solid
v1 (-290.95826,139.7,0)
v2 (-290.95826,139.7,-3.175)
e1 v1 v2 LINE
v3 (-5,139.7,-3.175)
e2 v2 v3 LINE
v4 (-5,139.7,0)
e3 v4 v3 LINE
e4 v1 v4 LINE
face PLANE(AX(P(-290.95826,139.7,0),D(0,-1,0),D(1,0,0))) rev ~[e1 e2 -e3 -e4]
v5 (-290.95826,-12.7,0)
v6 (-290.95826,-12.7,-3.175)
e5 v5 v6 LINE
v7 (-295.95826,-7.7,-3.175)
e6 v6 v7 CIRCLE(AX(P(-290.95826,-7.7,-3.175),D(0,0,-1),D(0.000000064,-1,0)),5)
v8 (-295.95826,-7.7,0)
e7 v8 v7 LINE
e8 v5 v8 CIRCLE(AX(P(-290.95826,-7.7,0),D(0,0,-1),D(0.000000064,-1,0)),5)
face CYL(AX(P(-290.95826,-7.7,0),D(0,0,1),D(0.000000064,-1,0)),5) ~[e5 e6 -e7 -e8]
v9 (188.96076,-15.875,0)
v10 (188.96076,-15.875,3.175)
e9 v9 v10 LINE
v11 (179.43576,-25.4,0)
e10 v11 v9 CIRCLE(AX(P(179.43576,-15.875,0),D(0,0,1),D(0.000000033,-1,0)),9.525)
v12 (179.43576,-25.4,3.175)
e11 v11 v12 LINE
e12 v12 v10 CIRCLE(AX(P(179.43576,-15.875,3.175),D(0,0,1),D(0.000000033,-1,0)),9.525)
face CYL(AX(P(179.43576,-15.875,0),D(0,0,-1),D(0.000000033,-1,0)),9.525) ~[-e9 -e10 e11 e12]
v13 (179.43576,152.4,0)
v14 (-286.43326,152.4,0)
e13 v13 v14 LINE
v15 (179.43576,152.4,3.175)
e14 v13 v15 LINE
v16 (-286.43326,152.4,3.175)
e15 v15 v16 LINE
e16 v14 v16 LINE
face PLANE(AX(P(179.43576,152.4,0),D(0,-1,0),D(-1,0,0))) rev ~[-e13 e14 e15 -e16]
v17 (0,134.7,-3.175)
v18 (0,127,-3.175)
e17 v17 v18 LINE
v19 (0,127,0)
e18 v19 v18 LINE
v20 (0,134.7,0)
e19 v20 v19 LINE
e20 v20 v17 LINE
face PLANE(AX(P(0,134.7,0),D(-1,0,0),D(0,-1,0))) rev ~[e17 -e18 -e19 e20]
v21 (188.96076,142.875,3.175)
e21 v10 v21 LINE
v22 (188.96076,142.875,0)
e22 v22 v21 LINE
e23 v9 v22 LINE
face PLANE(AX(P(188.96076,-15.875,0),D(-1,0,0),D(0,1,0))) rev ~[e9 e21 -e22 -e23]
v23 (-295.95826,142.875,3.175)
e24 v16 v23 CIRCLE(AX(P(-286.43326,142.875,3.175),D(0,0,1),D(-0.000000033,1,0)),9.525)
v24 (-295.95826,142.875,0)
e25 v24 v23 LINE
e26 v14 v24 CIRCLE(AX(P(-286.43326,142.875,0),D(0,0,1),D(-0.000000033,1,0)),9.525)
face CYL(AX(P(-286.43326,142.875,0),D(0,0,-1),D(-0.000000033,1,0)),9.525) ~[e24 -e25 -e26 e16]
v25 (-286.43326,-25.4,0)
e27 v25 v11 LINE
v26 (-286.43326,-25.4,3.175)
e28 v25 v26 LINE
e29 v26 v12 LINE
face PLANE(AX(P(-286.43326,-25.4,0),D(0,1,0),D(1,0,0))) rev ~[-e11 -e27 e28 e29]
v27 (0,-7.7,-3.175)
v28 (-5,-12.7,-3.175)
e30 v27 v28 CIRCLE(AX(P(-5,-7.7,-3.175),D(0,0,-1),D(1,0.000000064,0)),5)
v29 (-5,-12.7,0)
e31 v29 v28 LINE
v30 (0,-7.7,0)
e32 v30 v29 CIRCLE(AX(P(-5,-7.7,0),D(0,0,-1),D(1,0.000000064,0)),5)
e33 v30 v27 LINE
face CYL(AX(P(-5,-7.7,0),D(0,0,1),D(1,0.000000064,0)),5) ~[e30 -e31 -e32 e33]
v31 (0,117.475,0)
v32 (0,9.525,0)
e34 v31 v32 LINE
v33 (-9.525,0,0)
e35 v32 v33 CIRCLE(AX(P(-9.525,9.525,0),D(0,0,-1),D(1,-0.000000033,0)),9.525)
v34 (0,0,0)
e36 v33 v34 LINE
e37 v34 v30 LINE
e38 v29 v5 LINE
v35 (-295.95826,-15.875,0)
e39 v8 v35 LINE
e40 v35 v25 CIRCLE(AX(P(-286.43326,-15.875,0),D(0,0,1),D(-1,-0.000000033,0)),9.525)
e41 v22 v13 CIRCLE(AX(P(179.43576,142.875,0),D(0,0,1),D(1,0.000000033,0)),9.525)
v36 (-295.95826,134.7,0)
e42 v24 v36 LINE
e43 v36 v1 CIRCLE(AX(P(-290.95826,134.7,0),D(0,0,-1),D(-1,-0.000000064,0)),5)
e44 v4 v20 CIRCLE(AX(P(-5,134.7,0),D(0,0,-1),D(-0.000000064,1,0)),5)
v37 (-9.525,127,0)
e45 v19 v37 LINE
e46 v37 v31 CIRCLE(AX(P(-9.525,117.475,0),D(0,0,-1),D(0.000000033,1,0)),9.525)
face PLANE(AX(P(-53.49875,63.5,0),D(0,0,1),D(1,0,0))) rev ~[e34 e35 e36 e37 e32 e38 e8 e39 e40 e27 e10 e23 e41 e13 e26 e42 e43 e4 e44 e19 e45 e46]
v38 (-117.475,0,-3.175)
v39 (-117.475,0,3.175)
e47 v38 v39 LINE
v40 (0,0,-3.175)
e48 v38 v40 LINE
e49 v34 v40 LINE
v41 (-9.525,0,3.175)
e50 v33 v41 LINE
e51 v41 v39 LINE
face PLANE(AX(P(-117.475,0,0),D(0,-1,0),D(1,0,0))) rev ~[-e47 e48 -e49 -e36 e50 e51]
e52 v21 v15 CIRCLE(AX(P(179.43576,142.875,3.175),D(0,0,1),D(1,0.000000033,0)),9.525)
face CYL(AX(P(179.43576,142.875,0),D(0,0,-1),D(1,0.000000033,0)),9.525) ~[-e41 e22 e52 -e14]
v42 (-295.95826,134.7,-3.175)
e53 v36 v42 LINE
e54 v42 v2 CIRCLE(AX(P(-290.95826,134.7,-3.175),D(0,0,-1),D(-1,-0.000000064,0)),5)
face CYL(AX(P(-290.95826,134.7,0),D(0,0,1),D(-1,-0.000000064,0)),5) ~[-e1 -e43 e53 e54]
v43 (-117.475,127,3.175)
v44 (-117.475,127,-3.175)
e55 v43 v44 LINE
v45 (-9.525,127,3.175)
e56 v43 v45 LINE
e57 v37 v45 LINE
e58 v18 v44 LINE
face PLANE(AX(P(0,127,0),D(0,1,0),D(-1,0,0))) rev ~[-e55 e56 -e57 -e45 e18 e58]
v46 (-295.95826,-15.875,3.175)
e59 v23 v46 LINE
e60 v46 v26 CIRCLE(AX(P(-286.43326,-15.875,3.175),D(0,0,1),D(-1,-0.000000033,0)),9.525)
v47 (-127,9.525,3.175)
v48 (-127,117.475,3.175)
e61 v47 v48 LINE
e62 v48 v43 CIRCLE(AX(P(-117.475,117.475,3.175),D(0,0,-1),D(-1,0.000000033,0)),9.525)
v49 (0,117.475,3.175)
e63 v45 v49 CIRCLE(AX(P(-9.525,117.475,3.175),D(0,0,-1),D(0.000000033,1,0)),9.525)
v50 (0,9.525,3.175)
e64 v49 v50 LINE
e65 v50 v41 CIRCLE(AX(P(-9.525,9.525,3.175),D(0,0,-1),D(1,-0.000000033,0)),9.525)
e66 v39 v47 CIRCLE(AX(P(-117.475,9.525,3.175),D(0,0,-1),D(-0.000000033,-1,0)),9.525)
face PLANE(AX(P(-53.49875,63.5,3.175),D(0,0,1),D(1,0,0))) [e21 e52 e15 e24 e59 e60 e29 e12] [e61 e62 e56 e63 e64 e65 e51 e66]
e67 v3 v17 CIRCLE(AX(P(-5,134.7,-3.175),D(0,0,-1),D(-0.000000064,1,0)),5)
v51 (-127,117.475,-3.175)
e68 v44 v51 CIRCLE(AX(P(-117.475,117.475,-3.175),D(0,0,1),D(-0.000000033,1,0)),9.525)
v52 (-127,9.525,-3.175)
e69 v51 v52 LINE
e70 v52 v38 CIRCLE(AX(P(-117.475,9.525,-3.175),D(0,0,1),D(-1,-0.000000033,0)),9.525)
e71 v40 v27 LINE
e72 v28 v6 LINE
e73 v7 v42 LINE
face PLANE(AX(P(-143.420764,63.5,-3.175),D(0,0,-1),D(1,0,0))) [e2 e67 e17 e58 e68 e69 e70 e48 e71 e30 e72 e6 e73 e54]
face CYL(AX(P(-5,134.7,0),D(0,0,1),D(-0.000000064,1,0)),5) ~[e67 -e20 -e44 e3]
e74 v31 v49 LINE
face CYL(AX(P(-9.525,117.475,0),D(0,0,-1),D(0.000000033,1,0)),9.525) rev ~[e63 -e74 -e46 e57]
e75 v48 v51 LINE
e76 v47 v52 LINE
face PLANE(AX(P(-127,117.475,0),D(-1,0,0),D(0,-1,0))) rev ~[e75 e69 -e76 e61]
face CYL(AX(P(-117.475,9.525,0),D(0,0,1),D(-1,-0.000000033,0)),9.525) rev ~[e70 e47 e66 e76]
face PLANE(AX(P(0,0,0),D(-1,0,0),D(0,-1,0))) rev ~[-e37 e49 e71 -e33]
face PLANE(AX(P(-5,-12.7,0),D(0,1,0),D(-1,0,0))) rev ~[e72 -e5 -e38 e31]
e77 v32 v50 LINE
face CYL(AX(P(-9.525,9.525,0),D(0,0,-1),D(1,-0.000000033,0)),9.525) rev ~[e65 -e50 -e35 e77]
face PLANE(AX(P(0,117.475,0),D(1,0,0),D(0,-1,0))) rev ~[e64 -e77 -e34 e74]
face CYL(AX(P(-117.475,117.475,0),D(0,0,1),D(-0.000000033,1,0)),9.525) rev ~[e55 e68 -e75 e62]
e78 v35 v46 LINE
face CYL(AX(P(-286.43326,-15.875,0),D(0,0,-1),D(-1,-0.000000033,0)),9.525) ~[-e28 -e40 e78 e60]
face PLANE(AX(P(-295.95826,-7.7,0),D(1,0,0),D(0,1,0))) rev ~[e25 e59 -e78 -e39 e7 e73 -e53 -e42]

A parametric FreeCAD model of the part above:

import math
import FreeCAD as App
import Part
import Sketcher

V = App.Vector
Q = App.Units.Quantity

doc = App.newDocument("Part")
body = doc.addObject("PartDesign::Body", "Body")

# Sketch on XY plane
sketch1 = doc.addObject("Sketcher::SketchObject", "Sketch")
body.addObject(sketch1)
sketch1.AttachmentSupport = (doc.XY_Plane, [""])
sketch1.MapMode = "FlatFace"
sketch1.addGeometry([
    Part.LineSegment(V(179.43576, 152.4, 0), V(-286.43326, 152.4, 0)),  # 0
    Part.ArcOfCircle(Part.Circle(V(-286.43326, 142.875, 0), V(0, 0, 1), 9.525), math.radians(90.000002), math.radians(179.999998)),  # 1
    Part.LineSegment(V(-295.95826, 142.875, 0), V(-295.95826, -15.875, 0)),  # 2
    Part.ArcOfCircle(Part.Circle(V(-286.43326, -15.875, 0), V(0, 0, 1), 9.525), math.radians(-179.999998), math.radians(-90.000002)),  # 3
    Part.LineSegment(V(-286.43326, -25.4, 0), V(179.43576, -25.4, 0)),  # 4
    Part.ArcOfCircle(Part.Circle(V(179.43576, -15.875, 0), V(0, 0, 1), 9.525), math.radians(-89.999998), math.radians(-0.000002)),  # 5
    Part.LineSegment(V(188.96076, -15.875, 0), V(188.96076, 142.875, 0)),  # 6
    Part.ArcOfCircle(Part.Circle(V(179.43576, 142.875, 0), V(0, 0, 1), 9.525), math.radians(0.000002), math.radians(89.999998)),  # 7
    Part.LineSegment(V(0, 117.475, 0), V(0, 9.525, 0)),  # 8
    Part.ArcOfCircle(Part.Circle(V(-9.525, 9.525, 0), V(0, 0, 1), 9.525), math.radians(-89.999998), math.radians(-0.000002)),  # 9
    Part.LineSegment(V(-9.525, 0, 0), V(-117.475, 0, 0)),  # 10
    Part.ArcOfCircle(Part.Circle(V(-117.475, 9.525, 0), V(0, 0, 1), 9.525), math.radians(-179.999998), math.radians(-90.000002)),  # 11
    Part.LineSegment(V(-127, 9.525, 0), V(-127, 117.475, 0)),  # 12
    Part.ArcOfCircle(Part.Circle(V(-117.475, 117.475, 0), V(0, 0, 1), 9.525), math.radians(90.000002), math.radians(179.999998)),  # 13
    Part.LineSegment(V(-117.475, 127, 0), V(-9.525, 127, 0)),  # 14
    Part.ArcOfCircle(Part.Circle(V(-9.525, 117.475, 0), V(0, 0, 1), 9.525), math.radians(0.000002), math.radians(89.999998)),  # 15
], False)
sketch1.addConstraint([
    Sketcher.Constraint("Tangent", 0, 2, 1, 1),
    Sketcher.Constraint("Tangent", 1, 2, 2, 1),
    Sketcher.Constraint("Tangent", 2, 2, 3, 1),
    Sketcher.Constraint("Tangent", 3, 2, 4, 1),
    Sketcher.Constraint("Tangent", 4, 2, 5, 1),
    Sketcher.Constraint("Tangent", 5, 2, 6, 1),
    Sketcher.Constraint("Tangent", 6, 2, 7, 1),
    Sketcher.Constraint("Tangent", 7, 2, 0, 1),
    Sketcher.Constraint("Tangent", 8, 2, 9, 2),
    Sketcher.Constraint("Tangent", 9, 1, 10, 1),
    Sketcher.Constraint("Tangent", 10, 2, 11, 2),
    Sketcher.Constraint("Tangent", 11, 1, 12, 1),
    Sketcher.Constraint("Tangent", 12, 2, 13, 2),
    Sketcher.Constraint("Tangent", 13, 1, 14, 1),
    Sketcher.Constraint("Tangent", 14, 2, 15, 2),
    Sketcher.Constraint("Tangent", 15, 1, 8, 1),
    Sketcher.Constraint("Horizontal", 0),
    Sketcher.Constraint("Vertical", 2),
    Sketcher.Constraint("Horizontal", 4),
    Sketcher.Constraint("Vertical", 6),
    Sketcher.Constraint("Vertical", 8),
    Sketcher.Constraint("Horizontal", 10),
    Sketcher.Constraint("Vertical", 12),
    Sketcher.Constraint("Horizontal", 14),
    Sketcher.Constraint("Equal", 1, 3),
    Sketcher.Constraint("Equal", 3, 5),
    Sketcher.Constraint("Equal", 5, 7),
    Sketcher.Constraint("Equal", 7, 9),
    Sketcher.Constraint("Equal", 9, 11),
    Sketcher.Constraint("Equal", 11, 13),
    Sketcher.Constraint("Equal", 13, 15),
    Sketcher.Constraint("PointOnObject", 8, 2, -2),
    Sketcher.Constraint("PointOnObject", 9, 1, -1),
    Sketcher.Constraint("Equal", 14, 8),
    Sketcher.Constraint("DistanceY", -1, 1, 0, 2, Q("6 in")),
    Sketcher.Constraint("DistanceY", 3, 2, -1, 1, Q("1 in")),
    Sketcher.Constraint("DistanceX", 11, 1, -1, 1, Q("5 in")),
    Sketcher.Constraint("Radius", 1, Q("0.375 in")),
    Sketcher.Constraint("DistanceX", 0, 2, 0, 1, Q("18.3413 in")),
    Sketcher.Constraint("DistanceX", 1, 3, -1, 1, Q("11.2769 in")),
])
pad1 = doc.addObject("PartDesign::Pad", "Pad")
body.addObject(pad1)
pad1.Profile = sketch1
pad1.Length = Q("0.125 in")

# Sketch on XY plane
sketch2 = doc.addObject("Sketcher::SketchObject", "Sketch001")
body.addObject(sketch2)
sketch2.AttachmentSupport = (doc.XY_Plane, [""])
sketch2.MapMode = "FlatFace"
sketch2.addGeometry([
    Part.LineSegment(V(-5, -12.7, 0), V(-290.95826, -12.7, 0)),  # 0
    Part.ArcOfCircle(Part.Circle(V(-290.95826, -7.7, 0), V(0, 0, 1), 5), math.radians(179.999996), math.radians(270.000004)),  # 1
    Part.LineSegment(V(-295.95826, -7.7, 0), V(-295.95826, 134.7, 0)),  # 2
    Part.ArcOfCircle(Part.Circle(V(-290.95826, 134.7, 0), V(0, 0, 1), 5), math.radians(89.999996), math.radians(180.000004)),  # 3
    Part.LineSegment(V(-290.95826, 139.7, 0), V(-5, 139.7, 0)),  # 4
    Part.ArcOfCircle(Part.Circle(V(-5, 134.7, 0), V(0, 0, 1), 5), math.radians(-0.000004), math.radians(90.000004)),  # 5
    Part.LineSegment(V(0, 134.7, 0), V(0, 127, 0)),  # 6
    Part.LineSegment(V(0, 127, 0), V(-117.475, 127, 0)),  # 7
    Part.ArcOfCircle(Part.Circle(V(-117.475, 117.475, 0), V(0, 0, 1), 9.525), math.radians(90.000002), math.radians(179.999998)),  # 8
    Part.LineSegment(V(-127, 117.475, 0), V(-127, 9.525, 0)),  # 9
    Part.ArcOfCircle(Part.Circle(V(-117.475, 9.525, 0), V(0, 0, 1), 9.525), math.radians(-179.999998), math.radians(-90.000002)),  # 10
    Part.LineSegment(V(-117.475, 0, 0), V(0, 0, 0)),  # 11
    Part.LineSegment(V(0, 0, 0), V(0, -7.7, 0)),  # 12
    Part.ArcOfCircle(Part.Circle(V(-5, -7.7, 0), V(0, 0, 1), 5), math.radians(-90.000004), math.radians(0.000004)),  # 13
], False)
sketch2.addConstraint([
    Sketcher.Constraint("Tangent", 0, 2, 1, 2),
    Sketcher.Constraint("Tangent", 1, 1, 2, 1),
    Sketcher.Constraint("Tangent", 2, 2, 3, 2),
    Sketcher.Constraint("Tangent", 3, 1, 4, 1),
    Sketcher.Constraint("Tangent", 4, 2, 5, 2),
    Sketcher.Constraint("Tangent", 5, 1, 6, 1),
    Sketcher.Constraint("Coincident", 6, 2, 7, 1),
    Sketcher.Constraint("Tangent", 7, 2, 8, 1),
    Sketcher.Constraint("Tangent", 8, 2, 9, 1),
    Sketcher.Constraint("Tangent", 9, 2, 10, 1),
    Sketcher.Constraint("Tangent", 10, 2, 11, 1),
    Sketcher.Constraint("Coincident", 11, 2, 12, 1),
    Sketcher.Constraint("Tangent", 12, 2, 13, 2),
    Sketcher.Constraint("Tangent", 13, 1, 0, 1),
    Sketcher.Constraint("Horizontal", 0),
    Sketcher.Constraint("Vertical", 2),
    Sketcher.Constraint("Horizontal", 4),
    Sketcher.Constraint("Vertical", 6),
    Sketcher.Constraint("Horizontal", 7),
    Sketcher.Constraint("Vertical", 9),
    Sketcher.Constraint("Horizontal", 11),
    Sketcher.Constraint("Vertical", 12),
    Sketcher.Constraint("Coincident", 11, 2, -1, 1),
    Sketcher.Constraint("Equal", 1, 3),
    Sketcher.Constraint("Equal", 3, 5),
    Sketcher.Constraint("Equal", 8, 10),
    Sketcher.Constraint("Equal", 5, 13),
    Sketcher.Constraint("PointOnObject", 5, 1, -2),
    Sketcher.Constraint("Equal", 6, 12),
    Sketcher.Constraint("DistanceY", -1, 1, 6, 2, Q("5 in")),
    Sketcher.Constraint("DistanceX", 8, 2, -1, 1, Q("5 in")),
    Sketcher.Constraint("Radius", 8, Q("0.375 in")),
    Sketcher.Constraint("DistanceY", 0, 2, 3, 1, Q("6 in")),
    Sketcher.Constraint("Radius", 1, 5.0),
    Sketcher.Constraint("DistanceX", 1, 1, -1, 1, Q("11.6519 in")),
])
pad2 = doc.addObject("PartDesign::Pad", "Pad001")
body.addObject(pad2)
pad2.Profile = sketch2
pad2.Length = Q("0.125 in")
pad2.Reversed = True

doc.recompute()
